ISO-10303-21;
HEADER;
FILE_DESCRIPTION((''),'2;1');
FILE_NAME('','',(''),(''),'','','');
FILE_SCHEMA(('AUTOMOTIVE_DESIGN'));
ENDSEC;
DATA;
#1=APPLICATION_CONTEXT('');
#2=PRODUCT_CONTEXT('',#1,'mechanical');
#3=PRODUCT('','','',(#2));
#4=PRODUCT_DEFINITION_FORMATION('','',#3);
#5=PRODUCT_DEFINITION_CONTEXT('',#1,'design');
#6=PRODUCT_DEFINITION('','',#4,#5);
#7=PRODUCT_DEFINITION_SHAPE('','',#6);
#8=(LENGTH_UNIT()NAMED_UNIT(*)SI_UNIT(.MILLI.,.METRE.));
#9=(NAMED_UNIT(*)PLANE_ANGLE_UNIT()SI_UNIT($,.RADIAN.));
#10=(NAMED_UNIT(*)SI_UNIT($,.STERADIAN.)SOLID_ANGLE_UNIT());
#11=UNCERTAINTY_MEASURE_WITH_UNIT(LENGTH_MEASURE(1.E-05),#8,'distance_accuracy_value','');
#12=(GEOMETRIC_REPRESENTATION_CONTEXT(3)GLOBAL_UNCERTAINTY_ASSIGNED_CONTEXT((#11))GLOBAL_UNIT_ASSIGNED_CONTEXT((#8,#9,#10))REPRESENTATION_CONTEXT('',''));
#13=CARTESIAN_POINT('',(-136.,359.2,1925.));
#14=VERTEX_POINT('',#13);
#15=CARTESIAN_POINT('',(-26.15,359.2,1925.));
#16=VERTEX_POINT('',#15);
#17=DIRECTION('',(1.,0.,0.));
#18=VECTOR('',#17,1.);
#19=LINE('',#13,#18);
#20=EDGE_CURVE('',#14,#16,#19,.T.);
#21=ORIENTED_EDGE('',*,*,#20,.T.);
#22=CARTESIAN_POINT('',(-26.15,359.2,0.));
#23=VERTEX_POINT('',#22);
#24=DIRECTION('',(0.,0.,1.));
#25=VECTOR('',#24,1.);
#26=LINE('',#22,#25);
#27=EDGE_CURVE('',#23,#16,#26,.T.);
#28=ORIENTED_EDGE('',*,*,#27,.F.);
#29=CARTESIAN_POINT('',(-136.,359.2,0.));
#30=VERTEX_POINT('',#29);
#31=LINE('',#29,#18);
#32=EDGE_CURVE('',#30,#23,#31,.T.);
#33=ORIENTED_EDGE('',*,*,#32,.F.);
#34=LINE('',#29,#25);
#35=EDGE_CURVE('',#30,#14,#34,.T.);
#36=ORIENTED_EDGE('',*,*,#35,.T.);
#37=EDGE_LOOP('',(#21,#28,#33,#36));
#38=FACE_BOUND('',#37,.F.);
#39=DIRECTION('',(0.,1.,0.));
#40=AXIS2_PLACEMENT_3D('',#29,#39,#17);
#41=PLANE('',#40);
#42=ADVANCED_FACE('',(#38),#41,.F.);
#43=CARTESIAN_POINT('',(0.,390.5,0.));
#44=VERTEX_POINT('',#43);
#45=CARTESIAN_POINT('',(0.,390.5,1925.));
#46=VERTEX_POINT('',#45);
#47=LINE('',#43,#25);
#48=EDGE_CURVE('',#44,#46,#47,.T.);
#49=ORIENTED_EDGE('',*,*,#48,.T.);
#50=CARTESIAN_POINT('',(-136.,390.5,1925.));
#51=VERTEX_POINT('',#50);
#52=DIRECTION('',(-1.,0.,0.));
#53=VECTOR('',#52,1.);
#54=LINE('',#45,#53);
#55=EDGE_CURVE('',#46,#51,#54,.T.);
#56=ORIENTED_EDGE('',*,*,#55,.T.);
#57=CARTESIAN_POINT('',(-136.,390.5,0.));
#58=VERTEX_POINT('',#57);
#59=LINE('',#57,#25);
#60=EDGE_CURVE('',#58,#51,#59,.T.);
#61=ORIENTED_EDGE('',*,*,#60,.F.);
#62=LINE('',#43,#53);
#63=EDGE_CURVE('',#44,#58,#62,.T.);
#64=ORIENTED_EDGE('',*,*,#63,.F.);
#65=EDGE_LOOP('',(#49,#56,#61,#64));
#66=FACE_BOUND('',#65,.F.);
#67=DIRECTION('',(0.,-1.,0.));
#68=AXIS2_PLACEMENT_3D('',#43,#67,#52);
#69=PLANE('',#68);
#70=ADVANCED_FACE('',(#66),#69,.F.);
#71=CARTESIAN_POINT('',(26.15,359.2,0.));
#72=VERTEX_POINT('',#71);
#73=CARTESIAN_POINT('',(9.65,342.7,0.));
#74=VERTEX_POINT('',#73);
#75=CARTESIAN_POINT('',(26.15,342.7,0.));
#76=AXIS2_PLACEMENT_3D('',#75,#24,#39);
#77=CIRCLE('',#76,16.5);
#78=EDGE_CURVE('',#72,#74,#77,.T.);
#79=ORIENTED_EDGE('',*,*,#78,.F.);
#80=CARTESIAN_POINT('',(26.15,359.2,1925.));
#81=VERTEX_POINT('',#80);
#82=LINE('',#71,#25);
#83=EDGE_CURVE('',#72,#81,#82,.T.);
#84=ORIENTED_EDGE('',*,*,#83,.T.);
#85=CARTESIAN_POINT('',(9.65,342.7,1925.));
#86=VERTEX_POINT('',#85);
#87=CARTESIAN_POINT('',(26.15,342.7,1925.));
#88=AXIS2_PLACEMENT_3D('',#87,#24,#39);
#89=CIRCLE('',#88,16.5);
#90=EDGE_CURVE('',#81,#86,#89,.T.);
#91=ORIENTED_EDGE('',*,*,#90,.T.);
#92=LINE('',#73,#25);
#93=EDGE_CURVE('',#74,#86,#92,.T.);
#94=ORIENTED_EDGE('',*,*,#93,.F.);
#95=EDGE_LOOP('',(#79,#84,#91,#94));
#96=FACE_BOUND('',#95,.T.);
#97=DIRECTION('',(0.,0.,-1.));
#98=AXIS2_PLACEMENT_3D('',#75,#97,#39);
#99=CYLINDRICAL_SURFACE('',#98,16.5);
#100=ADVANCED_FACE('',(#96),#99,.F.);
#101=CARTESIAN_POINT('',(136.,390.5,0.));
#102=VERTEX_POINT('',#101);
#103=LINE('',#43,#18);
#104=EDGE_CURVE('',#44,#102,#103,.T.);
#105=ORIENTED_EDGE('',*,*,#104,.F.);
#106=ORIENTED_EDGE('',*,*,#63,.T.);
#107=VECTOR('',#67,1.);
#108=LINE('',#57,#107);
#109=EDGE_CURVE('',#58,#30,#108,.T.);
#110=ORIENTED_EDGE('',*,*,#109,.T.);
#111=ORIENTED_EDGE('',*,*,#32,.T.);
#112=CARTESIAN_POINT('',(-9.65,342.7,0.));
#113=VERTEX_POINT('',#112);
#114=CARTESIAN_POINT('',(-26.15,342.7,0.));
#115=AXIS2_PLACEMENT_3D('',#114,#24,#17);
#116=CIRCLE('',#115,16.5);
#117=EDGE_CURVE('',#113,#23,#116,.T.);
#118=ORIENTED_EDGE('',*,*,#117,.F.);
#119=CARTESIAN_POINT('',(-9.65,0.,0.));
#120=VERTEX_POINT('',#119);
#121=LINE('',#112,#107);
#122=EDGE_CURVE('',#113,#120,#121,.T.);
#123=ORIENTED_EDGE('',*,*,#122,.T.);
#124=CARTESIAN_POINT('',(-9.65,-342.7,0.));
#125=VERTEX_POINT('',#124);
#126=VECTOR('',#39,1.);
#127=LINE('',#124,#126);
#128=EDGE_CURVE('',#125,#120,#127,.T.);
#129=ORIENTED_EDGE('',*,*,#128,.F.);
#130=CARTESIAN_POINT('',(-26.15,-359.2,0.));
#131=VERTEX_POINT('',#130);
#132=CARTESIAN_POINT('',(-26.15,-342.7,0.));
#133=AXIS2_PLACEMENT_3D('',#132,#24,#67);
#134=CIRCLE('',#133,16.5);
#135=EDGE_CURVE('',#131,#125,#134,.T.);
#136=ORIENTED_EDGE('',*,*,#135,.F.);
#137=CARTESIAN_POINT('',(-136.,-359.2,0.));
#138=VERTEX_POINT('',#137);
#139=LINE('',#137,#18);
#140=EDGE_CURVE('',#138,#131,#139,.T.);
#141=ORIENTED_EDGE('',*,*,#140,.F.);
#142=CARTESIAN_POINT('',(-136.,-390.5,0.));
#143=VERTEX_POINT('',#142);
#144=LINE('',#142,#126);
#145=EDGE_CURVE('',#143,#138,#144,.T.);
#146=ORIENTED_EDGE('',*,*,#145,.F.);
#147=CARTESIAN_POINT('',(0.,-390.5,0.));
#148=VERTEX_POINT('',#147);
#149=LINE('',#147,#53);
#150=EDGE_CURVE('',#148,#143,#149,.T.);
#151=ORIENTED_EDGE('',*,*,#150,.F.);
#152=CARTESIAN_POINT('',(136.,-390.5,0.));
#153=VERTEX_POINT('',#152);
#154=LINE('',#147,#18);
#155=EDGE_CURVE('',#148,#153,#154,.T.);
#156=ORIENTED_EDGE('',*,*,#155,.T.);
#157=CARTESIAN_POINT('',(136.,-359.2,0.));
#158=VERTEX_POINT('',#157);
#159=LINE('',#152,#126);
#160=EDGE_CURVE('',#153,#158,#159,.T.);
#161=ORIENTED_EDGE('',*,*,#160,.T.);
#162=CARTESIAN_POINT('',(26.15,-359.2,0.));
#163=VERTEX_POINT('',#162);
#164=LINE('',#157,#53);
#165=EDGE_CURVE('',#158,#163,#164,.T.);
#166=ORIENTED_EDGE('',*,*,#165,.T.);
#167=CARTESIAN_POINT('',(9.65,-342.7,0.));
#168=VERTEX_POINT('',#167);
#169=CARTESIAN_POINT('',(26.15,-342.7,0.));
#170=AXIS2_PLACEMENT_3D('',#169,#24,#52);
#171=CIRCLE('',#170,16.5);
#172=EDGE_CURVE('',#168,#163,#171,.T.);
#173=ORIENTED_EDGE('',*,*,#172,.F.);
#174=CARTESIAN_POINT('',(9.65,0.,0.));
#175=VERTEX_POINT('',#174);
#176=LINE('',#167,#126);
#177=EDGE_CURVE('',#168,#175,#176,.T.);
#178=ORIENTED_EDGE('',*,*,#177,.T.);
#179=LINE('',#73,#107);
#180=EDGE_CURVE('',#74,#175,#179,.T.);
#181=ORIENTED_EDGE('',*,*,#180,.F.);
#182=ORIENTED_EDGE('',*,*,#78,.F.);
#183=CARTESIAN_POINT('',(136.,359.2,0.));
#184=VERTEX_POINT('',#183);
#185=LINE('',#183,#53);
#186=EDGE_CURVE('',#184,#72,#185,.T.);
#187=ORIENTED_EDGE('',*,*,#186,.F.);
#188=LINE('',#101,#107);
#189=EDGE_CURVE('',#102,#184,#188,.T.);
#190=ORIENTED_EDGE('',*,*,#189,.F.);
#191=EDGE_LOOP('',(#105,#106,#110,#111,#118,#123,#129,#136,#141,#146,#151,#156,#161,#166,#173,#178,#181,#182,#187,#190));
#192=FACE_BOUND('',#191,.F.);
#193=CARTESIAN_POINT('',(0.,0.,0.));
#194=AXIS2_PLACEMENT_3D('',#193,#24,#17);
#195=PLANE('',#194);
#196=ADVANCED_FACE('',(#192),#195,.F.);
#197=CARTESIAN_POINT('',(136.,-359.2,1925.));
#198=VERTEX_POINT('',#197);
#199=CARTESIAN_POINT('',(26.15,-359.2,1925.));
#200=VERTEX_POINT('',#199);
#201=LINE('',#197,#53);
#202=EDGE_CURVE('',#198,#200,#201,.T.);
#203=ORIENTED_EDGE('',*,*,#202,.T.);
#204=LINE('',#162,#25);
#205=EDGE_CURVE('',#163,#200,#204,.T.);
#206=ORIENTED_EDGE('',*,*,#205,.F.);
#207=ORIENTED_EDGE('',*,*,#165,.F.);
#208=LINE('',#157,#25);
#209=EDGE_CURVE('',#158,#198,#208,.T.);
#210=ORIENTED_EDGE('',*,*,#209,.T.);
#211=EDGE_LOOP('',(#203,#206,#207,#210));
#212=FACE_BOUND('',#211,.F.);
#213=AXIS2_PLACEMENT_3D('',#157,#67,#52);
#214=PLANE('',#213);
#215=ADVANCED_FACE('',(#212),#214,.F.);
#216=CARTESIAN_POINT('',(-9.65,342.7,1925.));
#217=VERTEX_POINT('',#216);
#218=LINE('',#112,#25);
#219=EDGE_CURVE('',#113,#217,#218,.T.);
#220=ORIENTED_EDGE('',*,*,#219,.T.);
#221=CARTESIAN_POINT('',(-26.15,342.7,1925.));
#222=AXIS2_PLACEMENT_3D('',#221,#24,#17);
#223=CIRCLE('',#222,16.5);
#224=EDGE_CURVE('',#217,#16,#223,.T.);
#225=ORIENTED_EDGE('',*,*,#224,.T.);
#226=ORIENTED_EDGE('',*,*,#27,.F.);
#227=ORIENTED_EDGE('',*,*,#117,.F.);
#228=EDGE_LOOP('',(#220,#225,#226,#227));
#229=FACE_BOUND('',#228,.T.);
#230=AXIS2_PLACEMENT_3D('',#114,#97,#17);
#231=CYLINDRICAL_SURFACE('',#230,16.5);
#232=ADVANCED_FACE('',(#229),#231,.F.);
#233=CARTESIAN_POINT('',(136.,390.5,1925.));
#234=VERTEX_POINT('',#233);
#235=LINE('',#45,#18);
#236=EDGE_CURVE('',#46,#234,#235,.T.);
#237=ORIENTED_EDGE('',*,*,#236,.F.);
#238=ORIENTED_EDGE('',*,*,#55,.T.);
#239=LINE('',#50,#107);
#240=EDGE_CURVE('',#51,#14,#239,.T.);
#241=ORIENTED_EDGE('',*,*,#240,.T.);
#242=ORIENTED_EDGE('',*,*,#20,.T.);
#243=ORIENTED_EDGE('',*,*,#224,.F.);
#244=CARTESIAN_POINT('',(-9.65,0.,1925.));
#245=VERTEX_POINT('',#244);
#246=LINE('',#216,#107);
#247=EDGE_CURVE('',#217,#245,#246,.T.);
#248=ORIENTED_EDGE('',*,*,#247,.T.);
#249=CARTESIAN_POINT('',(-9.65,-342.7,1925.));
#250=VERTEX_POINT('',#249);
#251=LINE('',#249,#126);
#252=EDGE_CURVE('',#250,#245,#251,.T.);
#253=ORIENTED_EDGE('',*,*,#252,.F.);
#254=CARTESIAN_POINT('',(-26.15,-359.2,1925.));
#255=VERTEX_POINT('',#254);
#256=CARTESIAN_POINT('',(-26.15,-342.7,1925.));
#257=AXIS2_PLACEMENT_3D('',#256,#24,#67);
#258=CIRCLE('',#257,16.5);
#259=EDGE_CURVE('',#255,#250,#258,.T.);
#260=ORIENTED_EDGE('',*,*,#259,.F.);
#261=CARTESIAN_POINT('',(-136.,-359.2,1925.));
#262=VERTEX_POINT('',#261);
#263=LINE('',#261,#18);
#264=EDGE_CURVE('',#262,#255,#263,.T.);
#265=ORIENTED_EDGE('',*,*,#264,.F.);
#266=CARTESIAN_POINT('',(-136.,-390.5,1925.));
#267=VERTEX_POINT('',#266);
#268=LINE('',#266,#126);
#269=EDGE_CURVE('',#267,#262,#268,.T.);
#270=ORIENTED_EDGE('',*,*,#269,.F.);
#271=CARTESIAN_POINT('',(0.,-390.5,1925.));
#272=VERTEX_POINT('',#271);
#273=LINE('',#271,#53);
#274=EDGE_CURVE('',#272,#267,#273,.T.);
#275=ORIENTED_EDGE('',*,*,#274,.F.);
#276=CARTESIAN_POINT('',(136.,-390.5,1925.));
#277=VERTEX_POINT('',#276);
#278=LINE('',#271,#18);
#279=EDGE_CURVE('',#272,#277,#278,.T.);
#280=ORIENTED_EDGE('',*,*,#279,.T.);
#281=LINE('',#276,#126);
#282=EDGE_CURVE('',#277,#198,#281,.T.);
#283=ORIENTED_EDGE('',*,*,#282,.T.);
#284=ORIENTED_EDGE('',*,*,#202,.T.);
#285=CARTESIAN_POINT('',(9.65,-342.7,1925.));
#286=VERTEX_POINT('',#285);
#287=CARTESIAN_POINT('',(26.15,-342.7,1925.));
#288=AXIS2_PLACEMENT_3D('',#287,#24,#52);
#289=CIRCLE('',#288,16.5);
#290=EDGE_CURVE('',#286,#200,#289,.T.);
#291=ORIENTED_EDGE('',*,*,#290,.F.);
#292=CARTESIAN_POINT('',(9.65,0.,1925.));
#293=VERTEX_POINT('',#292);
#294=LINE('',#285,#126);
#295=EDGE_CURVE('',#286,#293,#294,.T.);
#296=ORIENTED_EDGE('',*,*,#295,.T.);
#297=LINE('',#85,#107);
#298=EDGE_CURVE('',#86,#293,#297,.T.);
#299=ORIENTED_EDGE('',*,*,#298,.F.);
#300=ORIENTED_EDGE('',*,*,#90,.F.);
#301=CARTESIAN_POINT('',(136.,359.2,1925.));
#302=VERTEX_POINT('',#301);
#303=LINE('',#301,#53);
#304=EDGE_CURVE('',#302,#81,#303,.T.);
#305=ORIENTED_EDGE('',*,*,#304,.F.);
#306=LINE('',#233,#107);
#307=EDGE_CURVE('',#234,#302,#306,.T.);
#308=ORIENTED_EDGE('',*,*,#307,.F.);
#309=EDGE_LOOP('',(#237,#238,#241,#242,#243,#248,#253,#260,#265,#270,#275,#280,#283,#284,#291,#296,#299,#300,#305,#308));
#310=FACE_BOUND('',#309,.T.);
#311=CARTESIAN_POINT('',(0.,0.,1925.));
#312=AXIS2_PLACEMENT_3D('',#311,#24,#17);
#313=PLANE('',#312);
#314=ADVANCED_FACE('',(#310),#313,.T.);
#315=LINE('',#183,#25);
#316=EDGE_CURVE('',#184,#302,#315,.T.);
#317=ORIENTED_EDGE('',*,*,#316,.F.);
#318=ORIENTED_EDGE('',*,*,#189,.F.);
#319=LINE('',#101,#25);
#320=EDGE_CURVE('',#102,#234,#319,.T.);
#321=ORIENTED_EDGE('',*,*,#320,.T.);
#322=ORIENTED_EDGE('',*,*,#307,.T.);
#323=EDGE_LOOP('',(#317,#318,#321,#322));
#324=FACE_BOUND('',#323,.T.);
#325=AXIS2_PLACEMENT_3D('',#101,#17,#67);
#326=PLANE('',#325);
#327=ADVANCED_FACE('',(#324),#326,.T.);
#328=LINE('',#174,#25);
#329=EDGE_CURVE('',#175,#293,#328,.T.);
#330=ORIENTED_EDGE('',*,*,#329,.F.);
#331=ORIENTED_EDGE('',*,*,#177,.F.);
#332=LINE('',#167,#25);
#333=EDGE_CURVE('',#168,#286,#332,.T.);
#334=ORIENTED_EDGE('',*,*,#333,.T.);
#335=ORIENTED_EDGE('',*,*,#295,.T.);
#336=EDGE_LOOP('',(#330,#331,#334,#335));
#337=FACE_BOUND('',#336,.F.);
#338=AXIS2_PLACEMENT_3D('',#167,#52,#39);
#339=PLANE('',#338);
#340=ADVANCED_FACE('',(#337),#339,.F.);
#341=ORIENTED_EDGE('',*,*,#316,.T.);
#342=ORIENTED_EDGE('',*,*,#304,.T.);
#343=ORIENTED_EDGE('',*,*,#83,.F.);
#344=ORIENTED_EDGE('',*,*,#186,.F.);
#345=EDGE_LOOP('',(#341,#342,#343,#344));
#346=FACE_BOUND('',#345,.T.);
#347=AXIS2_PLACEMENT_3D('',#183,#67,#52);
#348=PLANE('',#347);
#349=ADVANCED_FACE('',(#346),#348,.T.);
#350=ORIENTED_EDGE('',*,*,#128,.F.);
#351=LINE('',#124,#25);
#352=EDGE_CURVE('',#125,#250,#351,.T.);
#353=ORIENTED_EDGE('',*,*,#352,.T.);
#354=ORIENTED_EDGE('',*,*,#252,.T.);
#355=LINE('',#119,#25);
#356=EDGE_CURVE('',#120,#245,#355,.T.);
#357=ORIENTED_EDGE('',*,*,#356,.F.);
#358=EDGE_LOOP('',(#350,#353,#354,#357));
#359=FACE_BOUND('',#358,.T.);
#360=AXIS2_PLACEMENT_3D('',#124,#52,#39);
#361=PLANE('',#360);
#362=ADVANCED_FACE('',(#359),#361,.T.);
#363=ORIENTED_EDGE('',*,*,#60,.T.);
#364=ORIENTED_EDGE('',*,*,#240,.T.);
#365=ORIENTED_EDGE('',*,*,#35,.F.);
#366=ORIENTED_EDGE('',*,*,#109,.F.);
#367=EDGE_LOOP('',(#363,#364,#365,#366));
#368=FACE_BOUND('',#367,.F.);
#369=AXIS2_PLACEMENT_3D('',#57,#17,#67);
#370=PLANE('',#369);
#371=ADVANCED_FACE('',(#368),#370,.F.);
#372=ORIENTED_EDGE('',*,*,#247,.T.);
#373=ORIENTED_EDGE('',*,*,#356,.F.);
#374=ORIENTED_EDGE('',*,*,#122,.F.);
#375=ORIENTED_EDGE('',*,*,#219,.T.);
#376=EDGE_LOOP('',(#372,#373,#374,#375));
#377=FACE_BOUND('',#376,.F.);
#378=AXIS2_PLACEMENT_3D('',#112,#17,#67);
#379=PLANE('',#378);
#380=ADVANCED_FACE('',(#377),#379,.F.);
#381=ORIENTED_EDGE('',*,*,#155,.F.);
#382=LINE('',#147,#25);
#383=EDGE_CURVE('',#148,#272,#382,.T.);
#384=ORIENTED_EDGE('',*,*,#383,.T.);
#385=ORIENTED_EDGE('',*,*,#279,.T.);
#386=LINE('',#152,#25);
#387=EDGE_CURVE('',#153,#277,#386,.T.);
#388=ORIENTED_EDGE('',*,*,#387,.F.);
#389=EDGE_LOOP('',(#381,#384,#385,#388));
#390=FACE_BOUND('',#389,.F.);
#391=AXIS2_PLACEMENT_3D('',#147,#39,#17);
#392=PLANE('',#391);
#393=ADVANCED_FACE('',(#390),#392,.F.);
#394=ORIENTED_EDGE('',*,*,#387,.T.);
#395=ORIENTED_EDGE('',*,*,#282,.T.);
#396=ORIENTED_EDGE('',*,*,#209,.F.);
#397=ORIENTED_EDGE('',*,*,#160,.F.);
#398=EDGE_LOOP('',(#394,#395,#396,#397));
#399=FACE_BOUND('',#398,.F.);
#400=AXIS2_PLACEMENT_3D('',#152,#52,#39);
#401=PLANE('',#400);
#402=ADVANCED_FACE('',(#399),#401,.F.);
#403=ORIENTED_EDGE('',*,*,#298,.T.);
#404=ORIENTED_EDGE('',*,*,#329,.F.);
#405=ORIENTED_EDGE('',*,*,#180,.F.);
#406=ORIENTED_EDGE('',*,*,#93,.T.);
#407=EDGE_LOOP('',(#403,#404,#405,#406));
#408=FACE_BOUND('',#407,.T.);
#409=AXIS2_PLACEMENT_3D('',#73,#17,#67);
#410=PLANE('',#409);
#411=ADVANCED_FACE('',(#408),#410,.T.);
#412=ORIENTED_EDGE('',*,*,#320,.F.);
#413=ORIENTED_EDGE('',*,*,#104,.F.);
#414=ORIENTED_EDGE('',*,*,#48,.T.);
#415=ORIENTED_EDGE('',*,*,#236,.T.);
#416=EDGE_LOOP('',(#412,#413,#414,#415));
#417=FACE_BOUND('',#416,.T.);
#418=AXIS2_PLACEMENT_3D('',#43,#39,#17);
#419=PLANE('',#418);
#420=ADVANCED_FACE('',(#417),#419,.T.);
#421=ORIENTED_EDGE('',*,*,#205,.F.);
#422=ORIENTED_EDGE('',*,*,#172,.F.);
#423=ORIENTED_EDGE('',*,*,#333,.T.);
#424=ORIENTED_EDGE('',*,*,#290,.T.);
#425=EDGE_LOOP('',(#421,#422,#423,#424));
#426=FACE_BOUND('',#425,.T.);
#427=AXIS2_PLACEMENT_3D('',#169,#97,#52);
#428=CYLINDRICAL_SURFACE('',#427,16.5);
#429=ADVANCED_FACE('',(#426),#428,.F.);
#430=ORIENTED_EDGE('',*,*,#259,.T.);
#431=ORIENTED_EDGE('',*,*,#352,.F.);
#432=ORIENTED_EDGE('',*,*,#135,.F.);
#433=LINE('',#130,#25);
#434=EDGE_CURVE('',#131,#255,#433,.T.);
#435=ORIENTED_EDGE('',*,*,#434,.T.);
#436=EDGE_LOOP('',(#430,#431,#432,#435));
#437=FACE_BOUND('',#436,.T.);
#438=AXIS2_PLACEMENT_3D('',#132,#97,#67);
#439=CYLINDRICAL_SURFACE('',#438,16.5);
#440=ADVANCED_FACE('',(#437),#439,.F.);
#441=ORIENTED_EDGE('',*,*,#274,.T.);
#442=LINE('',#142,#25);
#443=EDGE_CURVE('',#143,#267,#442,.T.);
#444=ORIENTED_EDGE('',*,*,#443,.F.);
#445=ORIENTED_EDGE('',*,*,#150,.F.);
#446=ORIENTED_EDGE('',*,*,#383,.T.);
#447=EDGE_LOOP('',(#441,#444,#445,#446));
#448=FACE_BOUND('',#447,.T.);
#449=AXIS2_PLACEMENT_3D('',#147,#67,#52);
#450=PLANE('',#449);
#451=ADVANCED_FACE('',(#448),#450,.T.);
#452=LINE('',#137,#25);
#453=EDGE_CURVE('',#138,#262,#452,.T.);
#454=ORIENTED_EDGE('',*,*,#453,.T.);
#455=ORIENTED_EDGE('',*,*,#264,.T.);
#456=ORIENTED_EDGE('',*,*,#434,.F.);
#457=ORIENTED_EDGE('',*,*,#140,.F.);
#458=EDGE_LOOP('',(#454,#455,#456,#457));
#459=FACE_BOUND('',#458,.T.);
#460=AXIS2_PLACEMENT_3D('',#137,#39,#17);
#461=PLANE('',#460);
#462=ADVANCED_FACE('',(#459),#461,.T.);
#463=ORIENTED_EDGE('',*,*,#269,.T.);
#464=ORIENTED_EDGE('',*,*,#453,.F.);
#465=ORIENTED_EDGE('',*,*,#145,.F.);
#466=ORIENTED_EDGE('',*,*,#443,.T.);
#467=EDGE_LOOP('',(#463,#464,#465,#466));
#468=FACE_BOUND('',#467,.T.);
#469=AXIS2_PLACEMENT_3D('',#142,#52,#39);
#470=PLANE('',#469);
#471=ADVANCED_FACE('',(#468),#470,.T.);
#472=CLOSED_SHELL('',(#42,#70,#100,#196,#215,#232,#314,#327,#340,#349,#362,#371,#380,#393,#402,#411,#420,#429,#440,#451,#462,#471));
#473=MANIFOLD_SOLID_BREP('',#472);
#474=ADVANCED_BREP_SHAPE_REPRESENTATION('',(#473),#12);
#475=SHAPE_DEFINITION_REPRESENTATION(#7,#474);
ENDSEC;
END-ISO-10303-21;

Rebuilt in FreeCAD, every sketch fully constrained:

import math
import FreeCAD as App
import Part
import Sketcher
Q = App.Units.Quantity

doc = App.newDocument("Part")
body = doc.addObject("PartDesign::Body", "Body")

# Sketch on XY plane
sketch1 = body.newObject("Sketcher::SketchObject", "Sketch")
sketch1.AttachmentSupport = (doc.getObject("XY_Plane"), [""])
sketch1.MapMode = "FlatFace"
sketch1.addGeometry([
    Part.LineSegment(App.Vector(-136, -359, 0), App.Vector(-136, -390, 0)),  # 0
    Part.LineSegment(App.Vector(-136, -390, 0), App.Vector(136, -390, 0)),  # 1
    Part.LineSegment(App.Vector(136, -390, 0), App.Vector(136, -359, 0)),  # 2
    Part.LineSegment(App.Vector(136, -359, 0), App.Vector(26, -359, 0)),  # 3
    Part.ArcOfCircle(Part.Circle(App.Vector(26, -343, 0), App.Vector(0, 0, 1), 16), math.radians(180), math.radians(270)),  # 4
    Part.LineSegment(App.Vector(10, -343, 0), App.Vector(10, 343, 0)),  # 5
    Part.ArcOfCircle(Part.Circle(App.Vector(26, 343, 0), App.Vector(0, 0, 1), 16), math.radians(90), math.radians(180)),  # 6
    Part.LineSegment(App.Vector(26, 359, 0), App.Vector(136, 359, 0)),  # 7
    Part.LineSegment(App.Vector(136, 359, 0), App.Vector(136, 390, 0)),  # 8
    Part.LineSegment(App.Vector(136, 390, 0), App.Vector(-136, 390, 0)),  # 9
    Part.LineSegment(App.Vector(-136, 390, 0), App.Vector(-136, 359, 0)),  # 10
    Part.LineSegment(App.Vector(-136, 359, 0), App.Vector(-26, 359, 0)),  # 11
    Part.ArcOfCircle(Part.Circle(App.Vector(-26, 343, 0), App.Vector(0, 0, 1), 16), math.radians(0), math.radians(90)),  # 12
    Part.LineSegment(App.Vector(-10, 343, 0), App.Vector(-10, -343, 0)),  # 13
    Part.ArcOfCircle(Part.Circle(App.Vector(-26, -343, 0), App.Vector(0, 0, 1), 16), math.radians(-90), math.radians(0)),  # 14
    Part.LineSegment(App.Vector(-26, -359, 0), App.Vector(-136, -359, 0)),  # 15
], False)
sketch1.addConstraint([
    Sketcher.Constraint("Coincident", 0, 2, 1, 1),
    Sketcher.Constraint("Coincident", 1, 2, 2, 1),
    Sketcher.Constraint("Coincident", 2, 2, 3, 1),
    Sketcher.Constraint("Tangent", 3, 2, 4, 2),
    Sketcher.Constraint("Tangent", 4, 1, 5, 1),
    Sketcher.Constraint("Tangent", 5, 2, 6, 2),
    Sketcher.Constraint("Tangent", 6, 1, 7, 1),
    Sketcher.Constraint("Coincident", 7, 2, 8, 1),
    Sketcher.Constraint("Coincident", 8, 2, 9, 1),
    Sketcher.Constraint("Coincident", 9, 2, 10, 1),
    Sketcher.Constraint("Coincident", 10, 2, 11, 1),
    Sketcher.Constraint("Tangent", 11, 2, 12, 2),
    Sketcher.Constraint("Tangent", 12, 1, 13, 1),
    Sketcher.Constraint("Tangent", 13, 2, 14, 2),
    Sketcher.Constraint("Tangent", 14, 1, 15, 1),
    Sketcher.Constraint("Coincident", 15, 2, 0, 1),
    Sketcher.Constraint("Vertical", 0),
    Sketcher.Constraint("Horizontal", 1),
    Sketcher.Constraint("Vertical", 2),
    Sketcher.Constraint("Horizontal", 3),
    Sketcher.Constraint("Vertical", 5),
    Sketcher.Constraint("Horizontal", 7),
    Sketcher.Constraint("Vertical", 8),
    Sketcher.Constraint("Horizontal", 9),
    Sketcher.Constraint("Vertical", 10),
    Sketcher.Constraint("Horizontal", 11),
    Sketcher.Constraint("Vertical", 13),
    Sketcher.Constraint("Horizontal", 15),
    Sketcher.Constraint("Equal", 4, 6),
    Sketcher.Constraint("Equal", 6, 12),
    Sketcher.Constraint("Equal", 12, 14),
    Sketcher.Constraint("Symmetric", 4, 3, 12, 3, -1, 1),
    Sketcher.Constraint("Symmetric", 0, 2, 8, 2, -1, 1),
    Sketcher.Constraint("Symmetric", 7, 2, 10, 2, -2),
    Sketcher.Constraint("Symmetric", 2, 2, 15, 2, -2),
    Sketcher.Constraint("Radius", 4, Q("16.5 mm")),
    Sketcher.Constraint("DistanceY", 0, 2, 0, 1, Q("31.3 mm")),
    Sketcher.Constraint("DistanceX", 0, 2, -1, 1, Q("136 mm")),
    Sketcher.Constraint("DistanceY", 0, 2, -1, 1, Q("390.5 mm")),
    Sketcher.Constraint("DistanceX", -1, 1, 4, 1, Q("9.65 mm")),
])
pad1 = body.newObject("PartDesign::Pad", "Pad")
pad1.Profile = sketch1
pad1.Length = 1925

doc.recompute()
